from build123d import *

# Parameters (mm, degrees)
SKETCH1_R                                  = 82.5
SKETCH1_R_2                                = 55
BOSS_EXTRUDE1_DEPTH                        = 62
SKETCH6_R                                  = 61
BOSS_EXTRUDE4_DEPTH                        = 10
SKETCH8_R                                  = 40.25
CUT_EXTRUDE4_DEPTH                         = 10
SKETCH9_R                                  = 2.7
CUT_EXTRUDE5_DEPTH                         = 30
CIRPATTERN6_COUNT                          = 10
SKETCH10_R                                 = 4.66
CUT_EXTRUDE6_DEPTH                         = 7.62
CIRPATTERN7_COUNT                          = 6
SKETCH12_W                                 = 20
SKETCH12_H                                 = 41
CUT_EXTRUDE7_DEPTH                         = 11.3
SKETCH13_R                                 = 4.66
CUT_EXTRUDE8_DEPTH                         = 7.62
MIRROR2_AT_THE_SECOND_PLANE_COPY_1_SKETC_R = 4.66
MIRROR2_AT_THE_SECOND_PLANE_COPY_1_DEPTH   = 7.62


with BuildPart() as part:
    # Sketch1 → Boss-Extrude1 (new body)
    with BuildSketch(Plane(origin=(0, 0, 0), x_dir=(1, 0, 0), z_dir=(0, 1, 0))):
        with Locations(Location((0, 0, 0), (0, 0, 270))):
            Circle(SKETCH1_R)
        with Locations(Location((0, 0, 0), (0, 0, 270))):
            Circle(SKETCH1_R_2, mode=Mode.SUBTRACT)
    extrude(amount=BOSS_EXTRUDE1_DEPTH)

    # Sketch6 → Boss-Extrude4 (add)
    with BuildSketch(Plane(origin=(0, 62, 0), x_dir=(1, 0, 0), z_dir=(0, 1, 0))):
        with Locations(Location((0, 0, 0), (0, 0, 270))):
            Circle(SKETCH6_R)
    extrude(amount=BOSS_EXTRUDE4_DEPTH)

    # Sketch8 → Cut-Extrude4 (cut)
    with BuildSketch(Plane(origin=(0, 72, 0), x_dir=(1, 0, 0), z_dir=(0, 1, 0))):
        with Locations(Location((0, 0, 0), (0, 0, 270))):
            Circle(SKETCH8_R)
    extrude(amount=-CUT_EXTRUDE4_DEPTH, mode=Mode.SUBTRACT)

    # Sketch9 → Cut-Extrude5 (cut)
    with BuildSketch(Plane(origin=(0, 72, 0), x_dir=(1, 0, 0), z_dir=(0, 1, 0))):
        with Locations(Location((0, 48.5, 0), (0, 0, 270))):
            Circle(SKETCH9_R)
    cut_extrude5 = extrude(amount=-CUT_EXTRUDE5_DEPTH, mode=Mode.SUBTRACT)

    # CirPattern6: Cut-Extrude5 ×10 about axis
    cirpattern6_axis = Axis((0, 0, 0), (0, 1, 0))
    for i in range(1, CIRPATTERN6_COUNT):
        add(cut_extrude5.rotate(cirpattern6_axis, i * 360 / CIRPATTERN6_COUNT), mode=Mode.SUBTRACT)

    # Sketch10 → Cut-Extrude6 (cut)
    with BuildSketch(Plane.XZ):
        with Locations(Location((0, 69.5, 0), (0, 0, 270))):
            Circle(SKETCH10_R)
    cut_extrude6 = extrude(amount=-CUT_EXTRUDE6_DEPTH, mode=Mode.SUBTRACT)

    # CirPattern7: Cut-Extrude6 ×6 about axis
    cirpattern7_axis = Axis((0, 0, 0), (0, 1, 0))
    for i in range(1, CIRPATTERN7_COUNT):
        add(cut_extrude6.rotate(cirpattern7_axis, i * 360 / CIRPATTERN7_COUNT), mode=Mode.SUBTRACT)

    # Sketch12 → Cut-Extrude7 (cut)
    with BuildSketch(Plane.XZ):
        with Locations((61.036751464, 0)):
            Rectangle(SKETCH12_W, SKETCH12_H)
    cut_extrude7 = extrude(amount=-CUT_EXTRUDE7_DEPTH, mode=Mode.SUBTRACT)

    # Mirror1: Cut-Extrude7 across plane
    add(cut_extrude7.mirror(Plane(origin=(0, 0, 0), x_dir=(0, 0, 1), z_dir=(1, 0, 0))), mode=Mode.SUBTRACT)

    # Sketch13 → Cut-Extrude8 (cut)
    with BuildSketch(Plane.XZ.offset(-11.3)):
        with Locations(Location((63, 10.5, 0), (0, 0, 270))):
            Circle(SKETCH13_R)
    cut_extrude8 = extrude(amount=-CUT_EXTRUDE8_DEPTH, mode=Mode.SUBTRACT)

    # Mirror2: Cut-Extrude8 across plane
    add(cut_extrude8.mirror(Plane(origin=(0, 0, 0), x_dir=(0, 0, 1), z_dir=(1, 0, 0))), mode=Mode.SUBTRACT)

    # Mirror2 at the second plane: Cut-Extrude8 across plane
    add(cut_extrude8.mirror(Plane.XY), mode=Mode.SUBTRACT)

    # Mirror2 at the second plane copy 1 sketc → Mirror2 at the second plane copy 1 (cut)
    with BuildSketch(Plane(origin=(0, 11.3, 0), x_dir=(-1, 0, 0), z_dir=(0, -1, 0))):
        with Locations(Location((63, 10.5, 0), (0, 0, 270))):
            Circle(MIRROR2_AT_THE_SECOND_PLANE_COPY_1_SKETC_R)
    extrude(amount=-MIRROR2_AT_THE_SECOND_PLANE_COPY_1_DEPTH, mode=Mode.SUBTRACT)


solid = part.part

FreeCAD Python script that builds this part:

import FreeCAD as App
import Part
import Sketcher
Q = App.Units.Quantity


def add_polygon(sketch, points):
    """Adds a closed chain of lines whose ends are joined by coincident constraints."""
    first, n = sketch.GeometryCount, len(points)
    for a, b in zip(points, points[1:] + points[:1]):
        sketch.addGeometry(Part.LineSegment(App.Vector(*a, 0), App.Vector(*b, 0)), False)
    for i in range(n):
        sketch.addConstraint(Sketcher.Constraint("Coincident", first + i, 2, first + (i + 1) % n, 1))

doc = App.newDocument("Part")
body = doc.addObject("PartDesign::Body", "Body")

# Sketch on XZ plane
sketch1 = doc.addObject("Sketcher::SketchObject", "Sketch")
body.addObject(sketch1)
sketch1.AttachmentSupport = (doc.XZ_Plane, [""])
sketch1.MapMode = "FlatFace"
sketch1.addGeometry([
    Part.Circle(App.Vector(0, 0, 0), App.Vector(0, 0, 1), 82),
    Part.Circle(App.Vector(0, 0, 0), App.Vector(0, 0, 1), 55),
], False)
sketch1.addConstraint([
    Sketcher.Constraint("Coincident", 0, 3, -1, 1),
    Sketcher.Constraint("Coincident", 1, 3, -1, 1),
    Sketcher.Constraint("Diameter", 0, Q("165 mm")),
    Sketcher.Constraint("Diameter", 1, Q("110 mm")),
])
pad1 = doc.addObject("PartDesign::Pad", "Pad")
body.addObject(pad1)
pad1.Profile = sketch1
pad1.Length = 62
pad1.Reversed = True

# Sketch on XZ plane
sketch2 = doc.addObject("Sketcher::SketchObject", "Sketch001")
body.addObject(sketch2)
sketch2.AttachmentSupport = (doc.XZ_Plane, [""])
sketch2.MapMode = "FlatFace"
sketch2.AttachmentOffset = App.Placement(App.Vector(0, 0, -62), App.Rotation())
sketch2.addGeometry(Part.Circle(App.Vector(0, 0, 0), App.Vector(0, 0, 1), 61), False)
sketch2.addConstraint([
    Sketcher.Constraint("Coincident", 0, 3, -1, 1),
    Sketcher.Constraint("Diameter", 0, Q("122 mm")),
])
pad2 = doc.addObject("PartDesign::Pad", "Pad001")
body.addObject(pad2)
pad2.Profile = sketch2
pad2.Length = 10
pad2.Reversed = True

# Sketch on XZ plane
sketch3 = doc.addObject("Sketcher::SketchObject", "Sketch002")
body.addObject(sketch3)
sketch3.AttachmentSupport = (doc.XZ_Plane, [""])
sketch3.MapMode = "FlatFace"
sketch3.AttachmentOffset = App.Placement(App.Vector(0, 0, -72), App.Rotation())
sketch3.addGeometry(Part.Circle(App.Vector(0, 0, 0), App.Vector(0, 0, 1), 40), False)
sketch3.addConstraint([
    Sketcher.Constraint("Coincident", 0, 3, -1, 1),
    Sketcher.Constraint("Diameter", 0, Q("80.5 mm")),
])
pocket1 = doc.addObject("PartDesign::Pocket", "Pocket")
body.addObject(pocket1)
pocket1.Profile = sketch3
pocket1.Length = 10
pocket1.Reversed = True

# Sketch on XZ plane
sketch4 = doc.addObject("Sketcher::SketchObject", "Sketch003")
body.addObject(sketch4)
sketch4.AttachmentSupport = (doc.XZ_Plane, [""])
sketch4.MapMode = "FlatFace"
sketch4.AttachmentOffset = App.Placement(App.Vector(0, 0, -72), App.Rotation())
sketch4.addGeometry(Part.Circle(App.Vector(0, -48.5, 0), App.Vector(0, 0, 1), 2.7), False)
sketch4.addConstraint([
    Sketcher.Constraint("PointOnObject", 0, 3, -2),
    Sketcher.Constraint("Diameter", 0, Q("5.4 mm")),
    Sketcher.Constraint("DistanceY", 0, 3, -1, 1, Q("48.5 mm")),
])
pocket2 = doc.addObject("PartDesign::Pocket", "Pocket001")
body.addObject(pocket2)
pocket2.Profile = sketch4
pocket2.Length = 30
pocket2.Reversed = True
doc.recompute()

polarpattern = doc.addObject("PartDesign::PolarPattern", "PolarPattern")
body.addObject(polarpattern)
polarpattern.Originals = [pocket2]
polarpattern.Axis = (doc.Y_Axis, [""])
polarpattern.Angle = 360
polarpattern.Occurrences = 10
body.Tip = polarpattern

# Sketch on XZ plane
sketch5 = doc.addObject("Sketcher::SketchObject", "Sketch004")
body.addObject(sketch5)
sketch5.AttachmentSupport = (doc.XZ_Plane, [""])
sketch5.MapMode = "FlatFace"
sketch5.addGeometry(Part.Circle(App.Vector(0, 69.5, 0), App.Vector(0, 0, 1), 4.7), False)
sketch5.addConstraint([
    Sketcher.Constraint("PointOnObject", 0, 3, -2),
    Sketcher.Constraint("Diameter", 0, Q("9.32 mm")),
    Sketcher.Constraint("DistanceY", -1, 1, 0, 3, Q("69.5 mm")),
])
pocket3 = doc.addObject("PartDesign::Pocket", "Pocket002")
body.addObject(pocket3)
pocket3.Profile = sketch5
pocket3.Length = 7.62
doc.recompute()

polarpattern2 = doc.addObject("PartDesign::PolarPattern", "PolarPattern001")
body.addObject(polarpattern2)
polarpattern2.Originals = [pocket3]
polarpattern2.Axis = (doc.Y_Axis, [""])
polarpattern2.Angle = 360
polarpattern2.Occurrences = 6
body.Tip = polarpattern2

# Sketch on XZ plane
sketch6 = doc.addObject("Sketcher::SketchObject", "Sketch005")
body.addObject(sketch6)
sketch6.AttachmentSupport = (doc.XZ_Plane, [""])
sketch6.MapMode = "FlatFace"
add_polygon(sketch6, [(51, 20), (51, -20), (71, -20), (71, 20)])  # lines 0-3
sketch6.addConstraint([
    Sketcher.Constraint("Vertical", 0),
    Sketcher.Constraint("Horizontal", 1),
    Sketcher.Constraint("Vertical", 2),
    Sketcher.Constraint("Horizontal", 3),
    Sketcher.Constraint("DistanceX", 1, 1, 1, 2, Q("20 mm")),
    Sketcher.Constraint("DistanceY", 0, 2, 0, 1, Q("41 mm")),
    Sketcher.Constraint("DistanceY", 0, 2, -1, 1, Q("20.5 mm")),
    Sketcher.Constraint("DistanceX", -1, 1, 0, 2, Q("51.036751 mm")),
])
pocket4 = doc.addObject("PartDesign::Pocket", "Pocket003")
body.addObject(pocket4)
pocket4.Profile = sketch6
pocket4.Length = 11.3
doc.recompute()

mirrored = doc.addObject("PartDesign::Mirrored", "Mirrored")
body.addObject(mirrored)
mirrored.Originals = [pocket4]
mirrored.MirrorPlane = (doc.YZ_Plane, [""])
body.Tip = mirrored

# Sketch on XZ plane
sketch7 = doc.addObject("Sketcher::SketchObject", "Sketch006")
body.addObject(sketch7)
sketch7.AttachmentSupport = (doc.XZ_Plane, [""])
sketch7.MapMode = "FlatFace"
sketch7.AttachmentOffset = App.Placement(App.Vector(0, 0, -11.3), App.Rotation())
sketch7.addGeometry(Part.Circle(App.Vector(63, 10.5, 0), App.Vector(0, 0, 1), 4.7), False)
sketch7.addConstraint([
    Sketcher.Constraint("Diameter", 0, Q("9.32 mm")),
    Sketcher.Constraint("DistanceX", -1, 1, 0, 3, Q("63 mm")),
    Sketcher.Constraint("DistanceY", -1, 1, 0, 3, Q("10.5 mm")),
])
pocket5 = doc.addObject("PartDesign::Pocket", "Pocket004")
body.addObject(pocket5)
pocket5.Profile = sketch7
pocket5.Length = 7.62
doc.recompute()

mirrored2 = doc.addObject("PartDesign::Mirrored", "Mirrored001")
body.addObject(mirrored2)
mirrored2.Originals = [pocket5]
mirrored2.MirrorPlane = (doc.YZ_Plane, [""])
body.Tip = mirrored2
doc.recompute()

mirrored3 = doc.addObject("PartDesign::Mirrored", "Mirrored002")
body.addObject(mirrored3)
mirrored3.Originals = [pocket5]
mirrored3.MirrorPlane = (doc.XY_Plane, [""])
body.Tip = mirrored3

# Sketch on XZ plane
sketch8 = doc.addObject("Sketcher::SketchObject", "Sketch007")
body.addObject(sketch8)
sketch8.AttachmentSupport = (doc.XZ_Plane, [""])
sketch8.MapMode = "FlatFace"
sketch8.AttachmentOffset = App.Placement(App.Vector(0, 0, -11.3), App.Rotation())
sketch8.addGeometry(Part.Circle(App.Vector(-63, -10.5, 0), App.Vector(0, 0, 1), 4.7), False)
sketch8.addConstraint([
    Sketcher.Constraint("Diameter", 0, Q("9.32 mm")),
    Sketcher.Constraint("DistanceX", 0, 3, -1, 1, Q("63 mm")),
    Sketcher.Constraint("DistanceY", 0, 3, -1, 1, Q("10.5 mm")),
])
pocket6 = doc.addObject("PartDesign::Pocket", "Pocket005")
body.addObject(pocket6)
pocket6.Profile = sketch8
pocket6.Length = 7.62

doc.recompute()
